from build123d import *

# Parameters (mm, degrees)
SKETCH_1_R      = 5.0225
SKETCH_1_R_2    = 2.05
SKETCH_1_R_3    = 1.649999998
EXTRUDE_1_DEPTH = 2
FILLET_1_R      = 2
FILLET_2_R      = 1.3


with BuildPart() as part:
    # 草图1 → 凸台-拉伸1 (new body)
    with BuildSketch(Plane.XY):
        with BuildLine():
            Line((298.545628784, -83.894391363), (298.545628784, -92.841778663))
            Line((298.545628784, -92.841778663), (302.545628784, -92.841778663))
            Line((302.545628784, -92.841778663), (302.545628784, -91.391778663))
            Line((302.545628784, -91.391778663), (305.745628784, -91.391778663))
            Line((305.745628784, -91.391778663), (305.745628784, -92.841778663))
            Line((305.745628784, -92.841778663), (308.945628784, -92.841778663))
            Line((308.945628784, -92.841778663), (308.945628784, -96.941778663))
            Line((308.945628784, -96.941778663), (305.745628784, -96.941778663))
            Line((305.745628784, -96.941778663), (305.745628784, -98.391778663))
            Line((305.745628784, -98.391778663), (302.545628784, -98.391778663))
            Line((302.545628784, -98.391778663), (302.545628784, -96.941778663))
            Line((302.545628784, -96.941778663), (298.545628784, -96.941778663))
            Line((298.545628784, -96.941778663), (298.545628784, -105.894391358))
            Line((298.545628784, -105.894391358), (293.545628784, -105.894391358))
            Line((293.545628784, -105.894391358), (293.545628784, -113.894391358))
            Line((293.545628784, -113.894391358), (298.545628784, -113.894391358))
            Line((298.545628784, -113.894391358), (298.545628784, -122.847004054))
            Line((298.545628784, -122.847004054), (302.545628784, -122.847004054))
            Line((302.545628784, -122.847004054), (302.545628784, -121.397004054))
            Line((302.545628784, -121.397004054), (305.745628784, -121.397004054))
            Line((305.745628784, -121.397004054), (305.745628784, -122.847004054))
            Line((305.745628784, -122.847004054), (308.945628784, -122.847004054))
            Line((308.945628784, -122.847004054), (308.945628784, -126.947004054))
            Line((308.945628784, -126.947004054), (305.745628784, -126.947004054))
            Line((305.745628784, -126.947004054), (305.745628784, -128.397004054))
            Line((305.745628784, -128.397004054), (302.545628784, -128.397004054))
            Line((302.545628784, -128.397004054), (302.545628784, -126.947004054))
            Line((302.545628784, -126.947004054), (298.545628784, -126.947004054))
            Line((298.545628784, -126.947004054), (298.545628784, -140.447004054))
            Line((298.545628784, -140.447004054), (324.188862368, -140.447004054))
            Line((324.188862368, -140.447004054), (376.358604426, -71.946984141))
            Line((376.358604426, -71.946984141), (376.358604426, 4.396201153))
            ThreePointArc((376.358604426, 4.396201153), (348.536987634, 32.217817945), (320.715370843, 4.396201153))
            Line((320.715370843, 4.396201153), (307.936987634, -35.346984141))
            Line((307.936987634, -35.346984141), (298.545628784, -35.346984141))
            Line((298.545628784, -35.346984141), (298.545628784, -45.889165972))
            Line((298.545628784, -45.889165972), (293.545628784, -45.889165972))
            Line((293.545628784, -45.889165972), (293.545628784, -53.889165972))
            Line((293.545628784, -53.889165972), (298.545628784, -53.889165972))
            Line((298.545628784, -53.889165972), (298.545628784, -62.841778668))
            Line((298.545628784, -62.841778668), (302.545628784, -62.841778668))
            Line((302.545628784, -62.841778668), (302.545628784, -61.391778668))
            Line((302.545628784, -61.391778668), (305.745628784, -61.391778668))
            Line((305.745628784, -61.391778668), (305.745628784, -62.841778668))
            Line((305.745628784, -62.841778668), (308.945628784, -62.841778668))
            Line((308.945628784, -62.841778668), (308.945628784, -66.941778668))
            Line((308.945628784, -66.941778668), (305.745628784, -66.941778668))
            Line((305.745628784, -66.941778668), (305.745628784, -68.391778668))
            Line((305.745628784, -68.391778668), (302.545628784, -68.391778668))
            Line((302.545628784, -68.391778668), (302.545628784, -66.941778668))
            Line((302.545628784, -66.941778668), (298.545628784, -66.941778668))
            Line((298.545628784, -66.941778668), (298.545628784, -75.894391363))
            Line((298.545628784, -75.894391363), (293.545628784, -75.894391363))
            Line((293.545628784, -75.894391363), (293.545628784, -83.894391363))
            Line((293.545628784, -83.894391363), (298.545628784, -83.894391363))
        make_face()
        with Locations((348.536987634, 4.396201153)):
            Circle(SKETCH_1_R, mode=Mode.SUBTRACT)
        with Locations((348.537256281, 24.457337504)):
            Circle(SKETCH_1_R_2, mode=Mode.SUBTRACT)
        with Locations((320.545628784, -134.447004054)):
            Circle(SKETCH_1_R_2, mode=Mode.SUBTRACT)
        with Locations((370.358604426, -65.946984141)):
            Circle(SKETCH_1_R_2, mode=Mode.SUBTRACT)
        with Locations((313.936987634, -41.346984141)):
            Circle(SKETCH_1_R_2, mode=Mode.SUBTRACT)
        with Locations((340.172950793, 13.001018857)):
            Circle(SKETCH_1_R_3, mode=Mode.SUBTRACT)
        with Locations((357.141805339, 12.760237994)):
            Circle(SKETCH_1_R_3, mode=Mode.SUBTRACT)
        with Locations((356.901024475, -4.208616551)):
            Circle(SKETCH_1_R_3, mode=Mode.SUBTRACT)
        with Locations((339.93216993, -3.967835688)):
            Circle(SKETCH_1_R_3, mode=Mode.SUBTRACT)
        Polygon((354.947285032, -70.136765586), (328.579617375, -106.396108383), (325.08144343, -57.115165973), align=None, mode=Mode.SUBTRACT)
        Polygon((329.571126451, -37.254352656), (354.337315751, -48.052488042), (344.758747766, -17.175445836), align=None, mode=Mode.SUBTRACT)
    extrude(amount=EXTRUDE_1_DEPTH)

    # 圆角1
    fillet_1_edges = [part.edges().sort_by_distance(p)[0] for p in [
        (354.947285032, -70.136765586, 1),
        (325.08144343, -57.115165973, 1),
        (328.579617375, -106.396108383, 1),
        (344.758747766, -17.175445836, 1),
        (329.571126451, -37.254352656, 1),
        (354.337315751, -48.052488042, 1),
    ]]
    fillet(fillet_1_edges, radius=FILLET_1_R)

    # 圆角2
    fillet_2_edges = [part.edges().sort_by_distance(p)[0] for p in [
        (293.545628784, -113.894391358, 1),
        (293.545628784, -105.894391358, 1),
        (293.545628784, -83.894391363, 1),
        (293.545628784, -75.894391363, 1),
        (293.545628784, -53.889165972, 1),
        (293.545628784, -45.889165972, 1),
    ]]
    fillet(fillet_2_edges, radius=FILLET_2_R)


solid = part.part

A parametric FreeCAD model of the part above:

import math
import FreeCAD as App
import Part
import Sketcher
from FreeCAD import Vector


def edges_at(feature, points):
    """Names of the edges that pass closest to the given points."""
    edges = feature.Shape.Edges
    near = lambda p: min(range(len(edges)), key=lambda i: edges[i].distToShape(Part.Vertex(*p))[0])
    return sorted({f"Edge{near(p) + 1}" for p in points})

doc = App.newDocument("Part")
body = doc.addObject("PartDesign::Body", "Body")

# Sketch on XY plane
sketch1 = body.newObject("Sketcher::SketchObject", "Sketch")
sketch1.AttachmentSupport = (doc.getObject("XY_Plane"), [""])
sketch1.MapMode = "FlatFace"
sketch1.addGeometry(Part.LineSegment(Vector(298.5, -83.9, 0), Vector(298.5, -92.8, 0)), False)
sketch1.addGeometry(Part.LineSegment(Vector(298.5, -92.8, 0), Vector(302.5, -92.8, 0)), False)
sketch1.addGeometry(Part.LineSegment(Vector(302.5, -92.8, 0), Vector(302.5, -91.4, 0)), False)
sketch1.addGeometry(Part.LineSegment(Vector(302.5, -91.4, 0), Vector(305.7, -91.4, 0)), False)
sketch1.addGeometry(Part.LineSegment(Vector(305.7, -91.4, 0), Vector(305.7, -92.8, 0)), False)
sketch1.addGeometry(Part.LineSegment(Vector(305.7, -92.8, 0), Vector(308.9, -92.8, 0)), False)
sketch1.addGeometry(Part.LineSegment(Vector(308.9, -92.8, 0), Vector(308.9, -96.9, 0)), False)
sketch1.addGeometry(Part.LineSegment(Vector(308.9, -96.9, 0), Vector(305.7, -96.9, 0)), False)
sketch1.addGeometry(Part.LineSegment(Vector(305.7, -96.9, 0), Vector(305.7, -98.4, 0)), False)
sketch1.addGeometry(Part.LineSegment(Vector(305.7, -98.4, 0), Vector(302.5, -98.4, 0)), False)
sketch1.addGeometry(Part.LineSegment(Vector(302.5, -98.4, 0), Vector(302.5, -96.9, 0)), False)
sketch1.addGeometry(Part.LineSegment(Vector(302.5, -96.9, 0), Vector(298.5, -96.9, 0)), False)
sketch1.addGeometry(Part.LineSegment(Vector(298.5, -96.9, 0), Vector(298.5, -105.9, 0)), False)
sketch1.addGeometry(Part.LineSegment(Vector(298.5, -105.9, 0), Vector(293.5, -105.9, 0)), False)
sketch1.addGeometry(Part.LineSegment(Vector(293.5, -105.9, 0), Vector(293.5, -113.9, 0)), False)
sketch1.addGeometry(Part.LineSegment(Vector(293.5, -113.9, 0), Vector(298.5, -113.9, 0)), False)
sketch1.addGeometry(Part.LineSegment(Vector(298.5, -113.9, 0), Vector(298.5, -122.8, 0)), False)
sketch1.addGeometry(Part.LineSegment(Vector(298.5, -122.8, 0), Vector(302.5, -122.8, 0)), False)
sketch1.addGeometry(Part.LineSegment(Vector(302.5, -122.8, 0), Vector(302.5, -121.4, 0)), False)
sketch1.addGeometry(Part.LineSegment(Vector(302.5, -121.4, 0), Vector(305.7, -121.4, 0)), False)
sketch1.addGeometry(Part.LineSegment(Vector(305.7, -121.4, 0), Vector(305.7, -122.8, 0)), False)
sketch1.addGeometry(Part.LineSegment(Vector(305.7, -122.8, 0), Vector(308.9, -122.8, 0)), False)
sketch1.addGeometry(Part.LineSegment(Vector(308.9, -122.8, 0), Vector(308.9, -126.9, 0)), False)
sketch1.addGeometry(Part.LineSegment(Vector(308.9, -126.9, 0), Vector(305.7, -126.9, 0)), False)
sketch1.addGeometry(Part.LineSegment(Vector(305.7, -126.9, 0), Vector(305.7, -128.4, 0)), False)
sketch1.addGeometry(Part.LineSegment(Vector(305.7, -128.4, 0), Vector(302.5, -128.4, 0)), False)
sketch1.addGeometry(Part.LineSegment(Vector(302.5, -128.4, 0), Vector(302.5, -126.9, 0)), False)
sketch1.addGeometry(Part.LineSegment(Vector(302.5, -126.9, 0), Vector(298.5, -126.9, 0)), False)
sketch1.addGeometry(Part.LineSegment(Vector(298.5, -126.9, 0), Vector(298.5, -140.4, 0)), False)
sketch1.addGeometry(Part.LineSegment(Vector(298.5, -140.4, 0), Vector(324.2, -140.4, 0)), False)
sketch1.addGeometry(Part.LineSegment(Vector(324.2, -140.4, 0), Vector(376.4, -71.9, 0)), False)
sketch1.addGeometry(Part.LineSegment(Vector(376.4, -71.9, 0), Vector(376.4, 4.4, 0)), False)
sketch1.addGeometry(Part.ArcOfCircle(Part.Circle(Vector(348.5, 4.4, 0), Vector(0, 0, 1), 27.8), math.radians(0), math.radians(180)), False)
sketch1.addGeometry(Part.LineSegment(Vector(320.7, 4.4, 0), Vector(307.9, -35.3, 0)), False)
sketch1.addGeometry(Part.LineSegment(Vector(307.9, -35.3, 0), Vector(298.5, -35.3, 0)), False)
sketch1.addGeometry(Part.LineSegment(Vector(298.5, -35.3, 0), Vector(298.5, -45.9, 0)), False)
sketch1.addGeometry(Part.LineSegment(Vector(298.5, -45.9, 0), Vector(293.5, -45.9, 0)), False)
sketch1.addGeometry(Part.LineSegment(Vector(293.5, -45.9, 0), Vector(293.5, -53.9, 0)), False)
sketch1.addGeometry(Part.LineSegment(Vector(293.5, -53.9, 0), Vector(298.5, -53.9, 0)), False)
sketch1.addGeometry(Part.LineSegment(Vector(298.5, -53.9, 0), Vector(298.5, -62.8, 0)), False)
sketch1.addGeometry(Part.LineSegment(Vector(298.5, -62.8, 0), Vector(302.5, -62.8, 0)), False)
sketch1.addGeometry(Part.LineSegment(Vector(302.5, -62.8, 0), Vector(302.5, -61.4, 0)), False)
sketch1.addGeometry(Part.LineSegment(Vector(302.5, -61.4, 0), Vector(305.7, -61.4, 0)), False)
sketch1.addGeometry(Part.LineSegment(Vector(305.7, -61.4, 0), Vector(305.7, -62.8, 0)), False)
sketch1.addGeometry(Part.LineSegment(Vector(305.7, -62.8, 0), Vector(308.9, -62.8, 0)), False)
sketch1.addGeometry(Part.LineSegment(Vector(308.9, -62.8, 0), Vector(308.9, -66.9, 0)), False)
sketch1.addGeometry(Part.LineSegment(Vector(308.9, -66.9, 0), Vector(305.7, -66.9, 0)), False)
sketch1.addGeometry(Part.LineSegment(Vector(305.7, -66.9, 0), Vector(305.7, -68.4, 0)), False)
sketch1.addGeometry(Part.LineSegment(Vector(305.7, -68.4, 0), Vector(302.5, -68.4, 0)), False)
sketch1.addGeometry(Part.LineSegment(Vector(302.5, -68.4, 0), Vector(302.5, -66.9, 0)), False)
sketch1.addGeometry(Part.LineSegment(Vector(302.5, -66.9, 0), Vector(298.5, -66.9, 0)), False)
sketch1.addGeometry(Part.LineSegment(Vector(298.5, -66.9, 0), Vector(298.5, -75.9, 0)), False)
sketch1.addGeometry(Part.LineSegment(Vector(298.5, -75.9, 0), Vector(293.5, -75.9, 0)), False)
sketch1.addGeometry(Part.LineSegment(Vector(293.5, -75.9, 0), Vector(293.5, -83.9, 0)), False)
sketch1.addGeometry(Part.LineSegment(Vector(293.5, -83.9, 0), Vector(298.5, -83.9, 0)), False)
sketch1.addGeometry(Part.Circle(Vector(320.5, -134.4, 0), Vector(0, 0, 1), 2), False)
sketch1.addGeometry(Part.LineSegment(Vector(325.1, -57.1, 0), Vector(354.9, -70.1, 0)), False)
sketch1.addGeometry(Part.LineSegment(Vector(354.9, -70.1, 0), Vector(328.6, -106.4, 0)), False)
sketch1.addGeometry(Part.LineSegment(Vector(328.6, -106.4, 0), Vector(325.1, -57.1, 0)), False)
sketch1.addGeometry(Part.Circle(Vector(370.4, -65.9, 0), Vector(0, 0, 1), 2), False)
sketch1.addGeometry(Part.Circle(Vector(313.9, -41.3, 0), Vector(0, 0, 1), 2), False)
sketch1.addGeometry(Part.LineSegment(Vector(354.3, -48.1, 0), Vector(329.6, -37.3, 0)), False)
sketch1.addGeometry(Part.LineSegment(Vector(329.6, -37.3, 0), Vector(344.8, -17.2, 0)), False)
sketch1.addGeometry(Part.LineSegment(Vector(344.8, -17.2, 0), Vector(354.3, -48.1, 0)), False)
sketch1.addGeometry(Part.Circle(Vector(339.9, -4, 0), Vector(0, 0, 1), 1.6), False)
sketch1.addGeometry(Part.Circle(Vector(340.2, 13, 0), Vector(0, 0, 1), 1.6), False)
sketch1.addGeometry(Part.Circle(Vector(348.5, 4.4, 0), Vector(0, 0, 1), 5), False)
sketch1.addGeometry(Part.Circle(Vector(356.9, -4.2, 0), Vector(0, 0, 1), 1.6), False)
sketch1.addGeometry(Part.Circle(Vector(348.5, 24.5, 0), Vector(0, 0, 1), 2), False)
sketch1.addGeometry(Part.Circle(Vector(357.1, 12.8, 0), Vector(0, 0, 1), 1.6), False)
sketch1.addConstraint(Sketcher.Constraint("Coincident", 0, 2, 1, 1))
sketch1.addConstraint(Sketcher.Constraint("Coincident", 1, 2, 2, 1))
sketch1.addConstraint(Sketcher.Constraint("Coincident", 2, 2, 3, 1))
sketch1.addConstraint(Sketcher.Constraint("Coincident", 3, 2, 4, 1))
sketch1.addConstraint(Sketcher.Constraint("Coincident", 4, 2, 5, 1))
sketch1.addConstraint(Sketcher.Constraint("Coincident", 5, 2, 6, 1))
sketch1.addConstraint(Sketcher.Constraint("Coincident", 6, 2, 7, 1))
sketch1.addConstraint(Sketcher.Constraint("Coincident", 7, 2, 8, 1))
sketch1.addConstraint(Sketcher.Constraint("Coincident", 8, 2, 9, 1))
sketch1.addConstraint(Sketcher.Constraint("Coincident", 9, 2, 10, 1))
sketch1.addConstraint(Sketcher.Constraint("Coincident", 10, 2, 11, 1))
sketch1.addConstraint(Sketcher.Constraint("Coincident", 11, 2, 12, 1))
sketch1.addConstraint(Sketcher.Constraint("Coincident", 12, 2, 13, 1))
sketch1.addConstraint(Sketcher.Constraint("Coincident", 13, 2, 14, 1))
sketch1.addConstraint(Sketcher.Constraint("Coincident", 14, 2, 15, 1))
sketch1.addConstraint(Sketcher.Constraint("Coincident", 15, 2, 16, 1))
sketch1.addConstraint(Sketcher.Constraint("Coincident", 16, 2, 17, 1))
sketch1.addConstraint(Sketcher.Constraint("Coincident", 17, 2, 18, 1))
sketch1.addConstraint(Sketcher.Constraint("Coincident", 18, 2, 19, 1))
sketch1.addConstraint(Sketcher.Constraint("Coincident", 19, 2, 20, 1))
sketch1.addConstraint(Sketcher.Constraint("Coincident", 20, 2, 21, 1))
sketch1.addConstraint(Sketcher.Constraint("Coincident", 21, 2, 22, 1))
sketch1.addConstraint(Sketcher.Constraint("Coincident", 22, 2, 23, 1))
sketch1.addConstraint(Sketcher.Constraint("Coincident", 23, 2, 24, 1))
sketch1.addConstraint(Sketcher.Constraint("Coincident", 24, 2, 25, 1))
sketch1.addConstraint(Sketcher.Constraint("Coincident", 25, 2, 26, 1))
sketch1.addConstraint(Sketcher.Constraint("Coincident", 26, 2, 27, 1))
sketch1.addConstraint(Sketcher.Constraint("Coincident", 27, 2, 28, 1))
sketch1.addConstraint(Sketcher.Constraint("Coincident", 28, 2, 29, 1))
sketch1.addConstraint(Sketcher.Constraint("Coincident", 29, 2, 30, 1))
sketch1.addConstraint(Sketcher.Constraint("Coincident", 30, 2, 31, 1))
sketch1.addConstraint(Sketcher.Constraint("Tangent", 31, 2, 32, 1))
sketch1.addConstraint(Sketcher.Constraint("Coincident", 32, 2, 33, 1))
sketch1.addConstraint(Sketcher.Constraint("Coincident", 33, 2, 34, 1))
sketch1.addConstraint(Sketcher.Constraint("Coincident", 34, 2, 35, 1))
sketch1.addConstraint(Sketcher.Constraint("Coincident", 35, 2, 36, 1))
sketch1.addConstraint(Sketcher.Constraint("Coincident", 36, 2, 37, 1))
sketch1.addConstraint(Sketcher.Constraint("Coincident", 37, 2, 38, 1))
sketch1.addConstraint(Sketcher.Constraint("Coincident", 38, 2, 39, 1))
sketch1.addConstraint(Sketcher.Constraint("Coincident", 39, 2, 40, 1))
sketch1.addConstraint(Sketcher.Constraint("Coincident", 40, 2, 41, 1))
sketch1.addConstraint(Sketcher.Constraint("Coincident", 41, 2, 42, 1))
sketch1.addConstraint(Sketcher.Constraint("Coincident", 42, 2, 43, 1))
sketch1.addConstraint(Sketcher.Constraint("Coincident", 43, 2, 44, 1))
sketch1.addConstraint(Sketcher.Constraint("Coincident", 44, 2, 45, 1))
sketch1.addConstraint(Sketcher.Constraint("Coincident", 45, 2, 46, 1))
sketch1.addConstraint(Sketcher.Constraint("Coincident", 46, 2, 47, 1))
sketch1.addConstraint(Sketcher.Constraint("Coincident", 47, 2, 48, 1))
sketch1.addConstraint(Sketcher.Constraint("Coincident", 48, 2, 49, 1))
sketch1.addConstraint(Sketcher.Constraint("Coincident", 49, 2, 50, 1))
sketch1.addConstraint(Sketcher.Constraint("Coincident", 50, 2, 51, 1))
sketch1.addConstraint(Sketcher.Constraint("Coincident", 51, 2, 52, 1))
sketch1.addConstraint(Sketcher.Constraint("Coincident", 52, 2, 53, 1))
sketch1.addConstraint(Sketcher.Constraint("Coincident", 53, 2, 54, 1))
sketch1.addConstraint(Sketcher.Constraint("Coincident", 54, 2, 0, 1))
sketch1.addConstraint(Sketcher.Constraint("Coincident", 56, 2, 57, 1))
sketch1.addConstraint(Sketcher.Constraint("Coincident", 57, 2, 58, 1))
sketch1.addConstraint(Sketcher.Constraint("Coincident", 58, 2, 56, 1))
sketch1.addConstraint(Sketcher.Constraint("Coincident", 61, 2, 62, 1))
sketch1.addConstraint(Sketcher.Constraint("Coincident", 62, 2, 63, 1))
sketch1.addConstraint(Sketcher.Constraint("Coincident", 63, 2, 61, 1))
sketch1.addConstraint(Sketcher.Constraint("Vertical", 0))
sketch1.addConstraint(Sketcher.Constraint("Horizontal", 1))
sketch1.addConstraint(Sketcher.Constraint("Vertical", 2))
sketch1.addConstraint(Sketcher.Constraint("Horizontal", 3))
sketch1.addConstraint(Sketcher.Constraint("Vertical", 4))
sketch1.addConstraint(Sketcher.Constraint("Horizontal", 5))
sketch1.addConstraint(Sketcher.Constraint("Vertical", 6))
sketch1.addConstraint(Sketcher.Constraint("Horizontal", 7))
sketch1.addConstraint(Sketcher.Constraint("Vertical", 8))
sketch1.addConstraint(Sketcher.Constraint("Horizontal", 9))
sketch1.addConstraint(Sketcher.Constraint("Vertical", 10))
sketch1.addConstraint(Sketcher.Constraint("Horizontal", 11))
sketch1.addConstraint(Sketcher.Constraint("Vertical", 12))
sketch1.addConstraint(Sketcher.Constraint("Horizontal", 13))
sketch1.addConstraint(Sketcher.Constraint("Vertical", 14))
sketch1.addConstraint(Sketcher.Constraint("Horizontal", 15))
sketch1.addConstraint(Sketcher.Constraint("Vertical", 16))
sketch1.addConstraint(Sketcher.Constraint("Horizontal", 17))
sketch1.addConstraint(Sketcher.Constraint("Vertical", 18))
sketch1.addConstraint(Sketcher.Constraint("Horizontal", 19))
sketch1.addConstraint(Sketcher.Constraint("Vertical", 20))
sketch1.addConstraint(Sketcher.Constraint("Horizontal", 21))
sketch1.addConstraint(Sketcher.Constraint("Vertical", 22))
sketch1.addConstraint(Sketcher.Constraint("Horizontal", 23))
sketch1.addConstraint(Sketcher.Constraint("Vertical", 24))
sketch1.addConstraint(Sketcher.Constraint("Horizontal", 25))
sketch1.addConstraint(Sketcher.Constraint("Vertical", 26))
sketch1.addConstraint(Sketcher.Constraint("Horizontal", 27))
sketch1.addConstraint(Sketcher.Constraint("Vertical", 28))
sketch1.addConstraint(Sketcher.Constraint("Horizontal", 29))
sketch1.addConstraint(Sketcher.Constraint("Vertical", 31))
sketch1.addConstraint(Sketcher.Constraint("Horizontal", 34))
sketch1.addConstraint(Sketcher.Constraint("Vertical", 35))
sketch1.addConstraint(Sketcher.Constraint("Horizontal", 36))
sketch1.addConstraint(Sketcher.Constraint("Vertical", 37))
sketch1.addConstraint(Sketcher.Constraint("Horizontal", 38))
sketch1.addConstraint(Sketcher.Constraint("Vertical", 39))
sketch1.addConstraint(Sketcher.Constraint("Horizontal", 40))
sketch1.addConstraint(Sketcher.Constraint("Vertical", 41))
sketch1.addConstraint(Sketcher.Constraint("Horizontal", 42))
sketch1.addConstraint(Sketcher.Constraint("Vertical", 43))
sketch1.addConstraint(Sketcher.Constraint("Horizontal", 44))
sketch1.addConstraint(Sketcher.Constraint("Vertical", 45))
sketch1.addConstraint(Sketcher.Constraint("Horizontal", 46))
sketch1.addConstraint(Sketcher.Constraint("Vertical", 47))
sketch1.addConstraint(Sketcher.Constraint("Horizontal", 48))
sketch1.addConstraint(Sketcher.Constraint("Vertical", 49))
sketch1.addConstraint(Sketcher.Constraint("Horizontal", 50))
sketch1.addConstraint(Sketcher.Constraint("Vertical", 51))
sketch1.addConstraint(Sketcher.Constraint("Horizontal", 52))
sketch1.addConstraint(Sketcher.Constraint("Vertical", 53))
sketch1.addConstraint(Sketcher.Constraint("Horizontal", 54))
sketch1.addConstraint(Sketcher.Constraint("Coincident", 66, 3, 32, 3))
sketch1.addConstraint(Sketcher.Constraint("Equal", 55, 59))
sketch1.addConstraint(Sketcher.Constraint("Equal", 59, 60))
sketch1.addConstraint(Sketcher.Constraint("Equal", 64, 65))
sketch1.addConstraint(Sketcher.Constraint("Equal", 65, 67))
sketch1.addConstraint(Sketcher.Constraint("Equal", 60, 68))
sketch1.addConstraint(Sketcher.Constraint("Equal", 67, 69))
sketch1.addConstraint(Sketcher.Constraint("Parallel", 56, 61))
sketch1.addConstraint(Sketcher.Constraint("Horizontal", 1, 2, 4, 2))
sketch1.addConstraint(Sketcher.Constraint("Horizontal", 7, 2, 10, 2))
sketch1.addConstraint(Sketcher.Constraint("Horizontal", 17, 2, 20, 2))
sketch1.addConstraint(Sketcher.Constraint("Horizontal", 23, 2, 26, 2))
sketch1.addConstraint(Sketcher.Constraint("Horizontal", 31, 2, 32, 2))
sketch1.addConstraint(Sketcher.Constraint("Horizontal", 40, 2, 43, 2))
sketch1.addConstraint(Sketcher.Constraint("Horizontal", 46, 2, 49, 2))
sketch1.addConstraint(Sketcher.Constraint("Vertical", 4, 2, 7, 2))
sketch1.addConstraint(Sketcher.Constraint("Vertical", 2, 2, 9, 2))
sketch1.addConstraint(Sketcher.Constraint("Vertical", 0, 2, 11, 2))
sketch1.addConstraint(Sketcher.Constraint("Vertical", 12, 2, 15, 2))
sketch1.addConstraint(Sketcher.Constraint("Vertical", 10, 2, 17, 2))
sketch1.addConstraint(Sketcher.Constraint("Vertical", 8, 2, 19, 2))
sketch1.addConstraint(Sketcher.Constraint("Vertical", 6, 2, 21, 2))
sketch1.addConstraint(Sketcher.Constraint("Vertical", 20, 2, 23, 2))
sketch1.addConstraint(Sketcher.Constraint("Vertical", 18, 2, 25, 2))
sketch1.addConstraint(Sketcher.Constraint("Vertical", 16, 2, 27, 2))
sketch1.addConstraint(Sketcher.Constraint("Vertical", 28, 2, 34, 2))
sketch1.addConstraint(Sketcher.Constraint("Vertical", 14, 2, 36, 2))
sketch1.addConstraint(Sketcher.Constraint("Vertical", 35, 2, 38, 2))
sketch1.addConstraint(Sketcher.Constraint("Vertical", 26, 2, 40, 2))
sketch1.addConstraint(Sketcher.Constraint("Vertical", 24, 2, 42, 2))
sketch1.addConstraint(Sketcher.Constraint("Vertical", 22, 2, 44, 2))
sketch1.addConstraint(Sketcher.Constraint("Vertical", 43, 2, 46, 2))
sketch1.addConstraint(Sketcher.Constraint("Vertical", 41, 2, 48, 2))
sketch1.addConstraint(Sketcher.Constraint("Vertical", 39, 2, 50, 2))
sketch1.addConstraint(Sketcher.Constraint("Vertical", 37, 2, 52, 2))
sketch1.addConstraint(Sketcher.Constraint("Equal", 3, 5))
sketch1.addConstraint(Sketcher.Constraint("Equal", 4, 8))
sketch1.addConstraint(Sketcher.Constraint("Equal", 12, 16))
sketch1.addConstraint(Sketcher.Constraint("Equal", 10, 18))
sketch1.addConstraint(Sketcher.Constraint("Equal", 6, 22))
sketch1.addConstraint(Sketcher.Constraint("Equal", 20, 24))
sketch1.addConstraint(Sketcher.Constraint("Equal", 14, 37))
sketch1.addConstraint(Sketcher.Constraint("Equal", 16, 39))
sketch1.addConstraint(Sketcher.Constraint("Equal", 26, 41))
sketch1.addConstraint(Sketcher.Constraint("Equal", 22, 45))
sketch1.addConstraint(Sketcher.Constraint("Equal", 43, 47))
sketch1.addConstraint(Sketcher.Constraint("Equal", 39, 51))
sketch1.addConstraint(Sketcher.Constraint("Equal", 37, 53))
sketch1.addConstraint(Sketcher.Constraint("Diameter", 55, 4.1))
sketch1.addConstraint(Sketcher.Constraint("Diameter", 64, 3.3))
sketch1.addConstraint(Sketcher.Constraint("DistanceX", 1, 1, 1, 2, 4.0))
sketch1.addConstraint(Sketcher.Constraint("DistanceX", 13, 2, 13, 1, 5.0))
sketch1.addConstraint(Sketcher.Constraint("DistanceY", 14, 2, 14, 1, 8.0))
sketch1.addConstraint(Sketcher.Constraint("Diameter", 66, 10.045))
sketch1.addConstraint(Sketcher.Constraint("DistanceX", 3, 1, 3, 2, 3.2))
sketch1.addConstraint(Sketcher.Constraint("DistanceY", 6, 2, 6, 1, 4.1))
sketch1.addConstraint(Sketcher.Constraint("DistanceY", 28, 2, 28, 1, 13.5))
sketch1.addConstraint(Sketcher.Constraint("DistanceY", 2, 1, 2, 2, 1.45))
sketch1.addConstraint(Sketcher.Constraint("Radius", 32, 27.821617))
sketch1.addConstraint(Sketcher.Constraint("DistanceX", 34, 2, 34, 1, 9.391359))
sketch1.addConstraint(Sketcher.Constraint("DistanceY", 35, 2, 35, 1, 10.542182))
sketch1.addConstraint(Sketcher.Constraint("DistanceY", -1, 1, 32, 3, 4.396201))
sketch1.addConstraint(Sketcher.Constraint("Distance", 30, 86.104208))
sketch1.addConstraint(Sketcher.Constraint("Distance", 33, 41.74695))
sketch1.addConstraint(Sketcher.Constraint("DistanceX", 29, 1, 29, 2, 25.643234))
sketch1.addConstraint(Sketcher.Constraint("DistanceY", 0, 2, 0, 1, 8.947387))
sketch1.addConstraint(Sketcher.Constraint("DistanceY", 12, 2, 12, 1, 8.952613))
sketch1.addConstraint(Sketcher.Constraint("DistanceY", 31, 1, 31, 2, 76.343185))
sketch1.addConstraint(Sketcher.Constraint("DistanceX", -1, 1, 55, 3, 320.545629))
sketch1.addConstraint(Sketcher.Constraint("DistanceX", -1, 1, 64, 3, 339.93217))
sketch1.addConstraint(Sketcher.Constraint("DistanceX", -1, 1, 65, 3, 340.172951))
sketch1.addConstraint(Sketcher.Constraint("DistanceY", -1, 1, 65, 3, 13.001019))
sketch1.addConstraint(Sketcher.Constraint("DistanceX", -1, 1, 0, 2, 298.545629))
sketch1.addConstraint(Sketcher.Constraint("DistanceY", 57, 2, -1, 1, 106.396108))
sketch1.addConstraint(Sketcher.Constraint("DistanceY", 63, 2, -1, 1, 48.052488))
sketch1.addConstraint(Sketcher.Constraint("Distance", 56, 32.581138))
sketch1.addConstraint(Sketcher.Constraint("Distance", 57, 44.832955))
sketch1.addConstraint(Sketcher.Constraint("Distance", 58, 49.404944))
sketch1.addConstraint(Sketcher.Constraint("Distance", 61, 27.017843))
sketch1.addConstraint(Sketcher.Constraint("Distance", 62, 25.175908))
sketch1.addConstraint(Sketcher.Constraint("Distance", 63, 32.328636))
sketch1.addConstraint(Sketcher.Constraint("DistanceY", 55, 3, -1, 1, 134.447004))
sketch1.addConstraint(Sketcher.Constraint("DistanceX", -1, 1, 59, 3, 370.358604))
sketch1.addConstraint(Sketcher.Constraint("DistanceY", 59, 3, -1, 1, 65.946984))
sketch1.addConstraint(Sketcher.Constraint("DistanceX", -1, 1, 60, 3, 313.936988))
sketch1.addConstraint(Sketcher.Constraint("DistanceY", 60, 3, -1, 1, 41.346984))
sketch1.addConstraint(Sketcher.Constraint("DistanceY", 64, 3, -1, 1, 3.967836))
sketch1.addConstraint(Sketcher.Constraint("DistanceX", -1, 1, 67, 3, 356.901024))
sketch1.addConstraint(Sketcher.Constraint("DistanceY", 67, 3, -1, 1, 4.208617))
sketch1.addConstraint(Sketcher.Constraint("DistanceX", -1, 1, 68, 3, 348.537256))
sketch1.addConstraint(Sketcher.Constraint("DistanceY", -1, 1, 68, 3, 24.457338))
sketch1.addConstraint(Sketcher.Constraint("DistanceX", -1, 1, 69, 3, 357.141805))
sketch1.addConstraint(Sketcher.Constraint("DistanceY", -1, 1, 69, 3, 12.760238))
sketch1.addConstraint(Sketcher.Constraint("DistanceX", -1, 1, 56, 2, 354.947285))
sketch1.addConstraint(Sketcher.Constraint("DistanceY", 56, 2, -1, 1, 70.136766))
sketch1.addConstraint(Sketcher.Constraint("DistanceX", -1, 1, 61, 2, 329.571126))
pad1 = body.newObject("PartDesign::Pad", "Pad")
pad1.Profile = sketch1
pad1.Length = 2
doc.recompute()

fillet = body.newObject("PartDesign::Fillet", "Fillet")
fillet.Base = (pad1, edges_at(pad1, [
    (354.947, -70.137, 1),
    (325.081, -57.115, 1),
    (328.58, -106.396, 1),
    (344.759, -17.175, 1),
    (329.571, -37.254, 1),
    (354.337, -48.052, 1),
]))
fillet.Radius = 2
doc.recompute()

fillet2 = body.newObject("PartDesign::Fillet", "Fillet001")
fillet2.Base = (fillet, edges_at(fillet, [
    (293.546, -113.894, 1),
    (293.546, -105.894, 1),
    (293.546, -83.894, 1),
    (293.546, -75.894, 1),
    (293.546, -53.889, 1),
    (293.546, -45.889, 1),
]))
fillet2.Radius = 1.3

doc.recompute()
